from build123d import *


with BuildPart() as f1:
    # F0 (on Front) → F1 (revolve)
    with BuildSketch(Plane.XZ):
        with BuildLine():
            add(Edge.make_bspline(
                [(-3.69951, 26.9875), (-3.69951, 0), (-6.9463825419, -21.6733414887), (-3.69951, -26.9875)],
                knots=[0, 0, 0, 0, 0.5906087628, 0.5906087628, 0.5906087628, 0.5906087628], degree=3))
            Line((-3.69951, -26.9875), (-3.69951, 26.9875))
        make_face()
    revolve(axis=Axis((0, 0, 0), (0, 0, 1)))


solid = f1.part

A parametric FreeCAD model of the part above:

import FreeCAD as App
import Part
import Sketcher
from FreeCAD import Vector

doc = App.newDocument("Part")
params = doc.addObject("Spreadsheet::Sheet", "Params")
for row, (alias, value) in enumerate([
    ("revolution_angle", "360 deg"),
], start=1):
    params.set(f"A{row}", alias)
    params.set(f"B{row}", "=" + value)
    params.setAlias(f"B{row}", alias)

body = doc.addObject("PartDesign::Body", "Body")

sketch1 = doc.addObject("Sketcher::SketchObject", "Sketch")
body.addObject(sketch1)
sketch1.AttachmentSupport = (doc.XZ_Plane, [""])
sketch1.MapMode = "FlatFace"
sketch1.addGeometry([
    Part.BSplineCurve([Vector(-3.69951, 26.9875, 0), Vector(-3.69951, 0, 0), Vector(-6.946383, -21.673341, 0), Vector(-3.69951, -26.9875, 0)], [4, 4], [0, 0.590608763], False, 3, [1, 1, 1, 1], False),
    Part.LineSegment(Vector(-3.69951, -26.9875, 0), Vector(-3.69951, 26.9875, 0)),
], False)
sketch1.addConstraint([
    Sketcher.Constraint("Block", 0),
    Sketcher.Constraint("Coincident", 0, 1, 1, 2),
    Sketcher.Constraint("Coincident", 1, 1, 0, 2),
])
revolution = doc.addObject("PartDesign::Revolution", "Revolution")
body.addObject(revolution)
revolution.Profile = sketch1
revolution.ReferenceAxis = (sketch1, ["V_Axis"])
revolution.setExpression("Angle", "Params.revolution_angle")

doc.recompute()
